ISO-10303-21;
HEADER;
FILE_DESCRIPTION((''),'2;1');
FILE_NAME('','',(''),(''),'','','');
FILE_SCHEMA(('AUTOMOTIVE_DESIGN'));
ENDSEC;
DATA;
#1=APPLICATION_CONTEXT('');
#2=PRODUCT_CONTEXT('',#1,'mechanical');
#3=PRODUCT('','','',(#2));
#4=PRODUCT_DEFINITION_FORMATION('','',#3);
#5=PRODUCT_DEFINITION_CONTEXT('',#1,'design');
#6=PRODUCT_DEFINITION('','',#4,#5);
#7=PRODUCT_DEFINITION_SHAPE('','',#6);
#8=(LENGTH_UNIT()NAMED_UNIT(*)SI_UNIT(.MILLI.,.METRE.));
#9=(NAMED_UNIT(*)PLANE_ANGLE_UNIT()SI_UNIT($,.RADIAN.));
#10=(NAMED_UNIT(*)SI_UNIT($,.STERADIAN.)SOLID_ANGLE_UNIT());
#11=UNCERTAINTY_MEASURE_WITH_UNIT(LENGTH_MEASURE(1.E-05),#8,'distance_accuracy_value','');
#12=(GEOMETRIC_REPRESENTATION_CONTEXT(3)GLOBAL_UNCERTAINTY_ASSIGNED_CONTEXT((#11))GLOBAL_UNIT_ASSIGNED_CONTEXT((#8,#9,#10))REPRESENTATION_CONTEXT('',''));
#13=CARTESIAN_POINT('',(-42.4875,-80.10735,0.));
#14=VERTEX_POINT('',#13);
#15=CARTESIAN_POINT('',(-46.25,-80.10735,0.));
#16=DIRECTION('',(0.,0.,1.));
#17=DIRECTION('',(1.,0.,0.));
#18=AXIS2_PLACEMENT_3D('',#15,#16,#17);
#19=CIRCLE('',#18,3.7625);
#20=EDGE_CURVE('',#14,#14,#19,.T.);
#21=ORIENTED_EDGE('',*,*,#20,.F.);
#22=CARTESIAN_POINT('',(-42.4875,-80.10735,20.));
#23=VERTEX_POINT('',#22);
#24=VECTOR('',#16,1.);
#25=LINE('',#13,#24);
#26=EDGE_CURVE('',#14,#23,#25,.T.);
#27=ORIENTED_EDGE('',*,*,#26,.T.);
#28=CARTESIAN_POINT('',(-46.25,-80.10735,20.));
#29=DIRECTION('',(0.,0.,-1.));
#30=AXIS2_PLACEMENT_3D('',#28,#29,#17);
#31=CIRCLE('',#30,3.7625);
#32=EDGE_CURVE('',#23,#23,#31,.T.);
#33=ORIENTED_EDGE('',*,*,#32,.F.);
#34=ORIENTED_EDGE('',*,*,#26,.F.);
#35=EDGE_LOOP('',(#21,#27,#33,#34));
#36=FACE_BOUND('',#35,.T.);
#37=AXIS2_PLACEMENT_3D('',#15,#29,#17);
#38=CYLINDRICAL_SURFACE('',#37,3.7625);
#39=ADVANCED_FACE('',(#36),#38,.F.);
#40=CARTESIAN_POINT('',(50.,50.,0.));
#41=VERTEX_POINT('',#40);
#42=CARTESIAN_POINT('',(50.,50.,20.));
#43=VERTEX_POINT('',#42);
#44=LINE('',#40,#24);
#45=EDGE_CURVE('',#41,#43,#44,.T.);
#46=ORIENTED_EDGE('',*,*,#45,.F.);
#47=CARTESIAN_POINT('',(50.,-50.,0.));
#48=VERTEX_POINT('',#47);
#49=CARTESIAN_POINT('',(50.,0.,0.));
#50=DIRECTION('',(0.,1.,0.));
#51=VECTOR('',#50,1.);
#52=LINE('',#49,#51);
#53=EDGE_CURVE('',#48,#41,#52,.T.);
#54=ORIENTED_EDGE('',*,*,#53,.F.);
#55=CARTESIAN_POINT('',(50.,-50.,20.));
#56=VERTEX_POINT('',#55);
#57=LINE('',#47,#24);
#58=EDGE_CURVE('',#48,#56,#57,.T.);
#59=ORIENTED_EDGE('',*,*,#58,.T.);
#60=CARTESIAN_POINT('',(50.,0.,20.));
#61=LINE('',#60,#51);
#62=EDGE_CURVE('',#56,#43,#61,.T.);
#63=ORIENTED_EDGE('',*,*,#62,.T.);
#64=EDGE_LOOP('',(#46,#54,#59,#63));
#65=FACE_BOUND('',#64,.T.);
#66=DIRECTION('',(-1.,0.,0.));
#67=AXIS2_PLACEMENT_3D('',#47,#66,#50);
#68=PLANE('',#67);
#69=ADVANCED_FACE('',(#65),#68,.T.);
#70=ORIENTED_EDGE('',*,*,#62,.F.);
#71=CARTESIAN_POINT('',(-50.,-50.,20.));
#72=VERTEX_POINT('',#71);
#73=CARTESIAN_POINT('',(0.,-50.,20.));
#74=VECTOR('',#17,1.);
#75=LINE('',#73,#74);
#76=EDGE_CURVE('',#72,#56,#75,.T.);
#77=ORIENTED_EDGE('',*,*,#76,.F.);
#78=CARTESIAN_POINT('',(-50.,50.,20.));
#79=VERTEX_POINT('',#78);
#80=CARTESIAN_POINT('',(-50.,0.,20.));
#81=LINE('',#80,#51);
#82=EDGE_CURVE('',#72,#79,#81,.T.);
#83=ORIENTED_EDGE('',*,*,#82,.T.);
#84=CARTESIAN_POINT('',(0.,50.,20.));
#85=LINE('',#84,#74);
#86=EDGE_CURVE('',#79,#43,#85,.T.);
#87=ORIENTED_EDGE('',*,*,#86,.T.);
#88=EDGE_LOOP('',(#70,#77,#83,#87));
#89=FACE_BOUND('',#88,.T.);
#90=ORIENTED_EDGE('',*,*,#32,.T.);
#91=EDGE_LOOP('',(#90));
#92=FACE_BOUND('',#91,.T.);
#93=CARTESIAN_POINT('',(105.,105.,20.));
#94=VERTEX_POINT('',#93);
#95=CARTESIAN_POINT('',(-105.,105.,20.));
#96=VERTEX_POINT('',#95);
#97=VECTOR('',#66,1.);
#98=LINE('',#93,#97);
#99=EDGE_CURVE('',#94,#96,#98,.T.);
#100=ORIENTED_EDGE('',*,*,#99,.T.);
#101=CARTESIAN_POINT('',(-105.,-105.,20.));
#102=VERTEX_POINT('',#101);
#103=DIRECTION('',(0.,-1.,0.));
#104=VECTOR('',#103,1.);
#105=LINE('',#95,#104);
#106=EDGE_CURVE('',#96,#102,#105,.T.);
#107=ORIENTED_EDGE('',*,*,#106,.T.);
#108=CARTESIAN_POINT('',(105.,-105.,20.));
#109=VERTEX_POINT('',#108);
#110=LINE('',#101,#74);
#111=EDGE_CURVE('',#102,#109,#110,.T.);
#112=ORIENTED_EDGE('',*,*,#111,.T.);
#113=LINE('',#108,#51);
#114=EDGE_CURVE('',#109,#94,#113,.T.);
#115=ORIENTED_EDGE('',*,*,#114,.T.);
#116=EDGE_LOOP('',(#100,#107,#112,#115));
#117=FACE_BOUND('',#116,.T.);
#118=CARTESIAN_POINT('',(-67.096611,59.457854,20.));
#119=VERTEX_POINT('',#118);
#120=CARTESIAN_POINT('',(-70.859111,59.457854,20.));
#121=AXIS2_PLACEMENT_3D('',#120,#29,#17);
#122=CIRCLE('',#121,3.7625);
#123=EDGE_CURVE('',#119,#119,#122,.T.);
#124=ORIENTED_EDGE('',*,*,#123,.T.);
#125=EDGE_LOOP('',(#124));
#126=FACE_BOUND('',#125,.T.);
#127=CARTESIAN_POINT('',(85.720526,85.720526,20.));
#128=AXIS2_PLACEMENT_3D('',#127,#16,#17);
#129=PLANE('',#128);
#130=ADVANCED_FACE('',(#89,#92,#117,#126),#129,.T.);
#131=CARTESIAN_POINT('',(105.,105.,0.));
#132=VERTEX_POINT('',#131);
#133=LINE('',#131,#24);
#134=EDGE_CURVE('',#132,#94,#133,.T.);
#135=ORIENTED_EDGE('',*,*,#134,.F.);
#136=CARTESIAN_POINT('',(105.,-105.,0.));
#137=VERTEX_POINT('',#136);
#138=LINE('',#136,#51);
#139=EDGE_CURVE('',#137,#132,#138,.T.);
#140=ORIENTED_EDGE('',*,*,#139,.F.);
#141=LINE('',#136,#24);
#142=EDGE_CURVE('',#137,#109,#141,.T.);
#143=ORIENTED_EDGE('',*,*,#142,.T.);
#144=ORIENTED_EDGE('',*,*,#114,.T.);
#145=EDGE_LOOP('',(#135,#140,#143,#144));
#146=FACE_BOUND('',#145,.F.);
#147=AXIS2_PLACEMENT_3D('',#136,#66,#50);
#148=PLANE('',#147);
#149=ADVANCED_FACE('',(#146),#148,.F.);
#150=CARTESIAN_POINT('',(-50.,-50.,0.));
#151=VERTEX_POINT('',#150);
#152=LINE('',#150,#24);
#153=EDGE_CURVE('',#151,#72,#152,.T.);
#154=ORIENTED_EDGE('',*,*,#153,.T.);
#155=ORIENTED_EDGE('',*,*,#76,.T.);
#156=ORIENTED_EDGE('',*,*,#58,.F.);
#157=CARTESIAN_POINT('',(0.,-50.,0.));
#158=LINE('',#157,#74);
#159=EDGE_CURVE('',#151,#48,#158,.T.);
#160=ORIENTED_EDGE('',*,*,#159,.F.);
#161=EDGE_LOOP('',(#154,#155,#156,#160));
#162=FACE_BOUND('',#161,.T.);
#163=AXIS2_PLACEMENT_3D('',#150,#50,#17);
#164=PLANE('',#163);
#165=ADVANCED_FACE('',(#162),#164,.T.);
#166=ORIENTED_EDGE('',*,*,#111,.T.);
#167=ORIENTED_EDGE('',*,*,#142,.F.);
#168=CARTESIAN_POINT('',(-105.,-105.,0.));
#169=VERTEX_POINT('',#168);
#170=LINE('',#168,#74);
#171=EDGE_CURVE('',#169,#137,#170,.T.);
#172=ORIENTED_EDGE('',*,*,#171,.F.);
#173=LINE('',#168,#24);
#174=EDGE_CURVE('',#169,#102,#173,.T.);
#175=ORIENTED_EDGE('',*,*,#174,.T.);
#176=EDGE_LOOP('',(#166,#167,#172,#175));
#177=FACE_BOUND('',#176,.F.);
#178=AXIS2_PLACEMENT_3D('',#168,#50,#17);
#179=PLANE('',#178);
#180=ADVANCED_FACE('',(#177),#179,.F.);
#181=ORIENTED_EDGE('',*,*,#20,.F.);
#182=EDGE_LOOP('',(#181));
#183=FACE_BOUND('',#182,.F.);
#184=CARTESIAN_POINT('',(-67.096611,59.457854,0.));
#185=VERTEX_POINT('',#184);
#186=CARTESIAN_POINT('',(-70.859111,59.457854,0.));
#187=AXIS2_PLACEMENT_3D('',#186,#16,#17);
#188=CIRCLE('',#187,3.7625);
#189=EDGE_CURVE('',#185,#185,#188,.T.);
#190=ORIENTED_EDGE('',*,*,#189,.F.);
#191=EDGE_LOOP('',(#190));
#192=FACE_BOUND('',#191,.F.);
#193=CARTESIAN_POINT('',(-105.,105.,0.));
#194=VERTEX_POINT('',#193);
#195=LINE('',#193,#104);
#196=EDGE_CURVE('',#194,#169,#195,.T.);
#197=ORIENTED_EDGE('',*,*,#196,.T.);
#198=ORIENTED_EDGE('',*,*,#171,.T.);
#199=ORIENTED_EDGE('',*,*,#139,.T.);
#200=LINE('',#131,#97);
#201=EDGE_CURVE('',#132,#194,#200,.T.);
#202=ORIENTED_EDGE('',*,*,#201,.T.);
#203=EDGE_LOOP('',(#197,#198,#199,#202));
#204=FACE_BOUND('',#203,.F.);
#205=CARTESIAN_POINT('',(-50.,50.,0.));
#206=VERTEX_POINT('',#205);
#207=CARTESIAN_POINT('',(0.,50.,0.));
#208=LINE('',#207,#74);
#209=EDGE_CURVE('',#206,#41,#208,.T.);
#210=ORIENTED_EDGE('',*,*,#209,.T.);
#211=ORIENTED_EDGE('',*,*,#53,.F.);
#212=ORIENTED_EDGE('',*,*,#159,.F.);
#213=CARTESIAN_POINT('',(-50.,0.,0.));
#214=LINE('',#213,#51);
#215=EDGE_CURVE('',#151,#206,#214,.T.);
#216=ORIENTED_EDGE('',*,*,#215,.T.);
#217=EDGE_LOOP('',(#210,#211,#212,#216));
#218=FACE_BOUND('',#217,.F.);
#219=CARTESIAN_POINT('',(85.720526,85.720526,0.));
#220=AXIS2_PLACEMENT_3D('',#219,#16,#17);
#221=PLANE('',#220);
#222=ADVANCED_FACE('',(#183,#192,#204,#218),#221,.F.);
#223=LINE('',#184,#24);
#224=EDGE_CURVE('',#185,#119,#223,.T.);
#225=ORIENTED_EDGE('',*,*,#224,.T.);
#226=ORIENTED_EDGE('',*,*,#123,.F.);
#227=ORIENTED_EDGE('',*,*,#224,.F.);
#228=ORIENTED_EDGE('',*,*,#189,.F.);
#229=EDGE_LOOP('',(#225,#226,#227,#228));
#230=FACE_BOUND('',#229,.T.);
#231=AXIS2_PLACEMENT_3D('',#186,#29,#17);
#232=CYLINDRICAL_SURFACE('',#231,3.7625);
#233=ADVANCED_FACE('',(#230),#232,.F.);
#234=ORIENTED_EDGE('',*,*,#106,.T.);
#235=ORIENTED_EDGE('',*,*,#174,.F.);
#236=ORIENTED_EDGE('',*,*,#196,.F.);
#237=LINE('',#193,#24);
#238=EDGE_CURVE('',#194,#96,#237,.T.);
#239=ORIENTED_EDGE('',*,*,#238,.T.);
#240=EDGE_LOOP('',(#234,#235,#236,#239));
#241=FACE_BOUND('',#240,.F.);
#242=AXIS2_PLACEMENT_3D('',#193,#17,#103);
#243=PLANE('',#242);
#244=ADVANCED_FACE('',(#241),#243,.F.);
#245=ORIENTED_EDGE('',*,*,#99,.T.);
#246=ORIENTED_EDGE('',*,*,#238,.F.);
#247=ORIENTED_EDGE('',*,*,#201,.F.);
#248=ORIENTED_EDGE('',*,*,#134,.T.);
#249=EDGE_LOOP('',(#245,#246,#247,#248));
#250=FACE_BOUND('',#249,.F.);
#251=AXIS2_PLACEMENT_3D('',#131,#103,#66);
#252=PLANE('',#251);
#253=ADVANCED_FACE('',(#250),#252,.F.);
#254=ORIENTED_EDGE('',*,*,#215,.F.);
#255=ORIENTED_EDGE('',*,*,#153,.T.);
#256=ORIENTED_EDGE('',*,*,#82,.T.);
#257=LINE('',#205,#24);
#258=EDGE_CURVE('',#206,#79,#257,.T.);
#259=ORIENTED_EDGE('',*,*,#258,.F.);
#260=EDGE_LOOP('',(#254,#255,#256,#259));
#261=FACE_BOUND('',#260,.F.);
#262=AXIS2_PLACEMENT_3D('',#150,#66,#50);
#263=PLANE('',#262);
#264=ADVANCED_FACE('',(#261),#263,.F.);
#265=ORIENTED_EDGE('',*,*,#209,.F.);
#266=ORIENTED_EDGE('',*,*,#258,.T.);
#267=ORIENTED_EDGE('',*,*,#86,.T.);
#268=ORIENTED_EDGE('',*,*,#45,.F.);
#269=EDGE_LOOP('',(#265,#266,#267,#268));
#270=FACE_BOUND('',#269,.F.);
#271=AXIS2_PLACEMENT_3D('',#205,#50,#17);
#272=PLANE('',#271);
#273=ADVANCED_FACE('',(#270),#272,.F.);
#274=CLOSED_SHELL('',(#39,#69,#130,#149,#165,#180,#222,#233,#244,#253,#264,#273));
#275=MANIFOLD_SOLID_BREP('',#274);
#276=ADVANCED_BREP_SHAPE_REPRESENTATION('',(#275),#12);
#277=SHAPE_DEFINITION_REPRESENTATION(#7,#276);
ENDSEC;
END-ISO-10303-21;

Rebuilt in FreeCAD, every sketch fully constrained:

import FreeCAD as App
import Part
import Sketcher
from FreeCAD import Vector
Q = App.Units.Quantity


def add_polygon(sketch, points):
    """Adds a closed chain of lines whose ends are joined by coincident constraints."""
    first, n = sketch.GeometryCount, len(points)
    for a, b in zip(points, points[1:] + points[:1]):
        sketch.addGeometry(Part.LineSegment(App.Vector(*a, 0), App.Vector(*b, 0)), False)
    for i in range(n):
        sketch.addConstraint(Sketcher.Constraint("Coincident", first + i, 2, first + (i + 1) % n, 1))

doc = App.newDocument("Part")
params = doc.addObject("Spreadsheet::Sheet", "Params")
for row, (alias, value) in enumerate([
    ("sketch1_width", "210 mm"),
    ("sketch1_width2", "100 mm"),
    ("pad1_length", "20 mm"),
    ("pocket1_length", "25 mm"),
], start=1):
    params.set(f"A{row}", alias)
    params.set(f"B{row}", "=" + value)
    params.setAlias(f"B{row}", alias)

body = doc.addObject("PartDesign::Body", "Body")

sketch1 = doc.addObject("Sketcher::SketchObject", "Sketch")
body.addObject(sketch1)
sketch1.AttachmentSupport = (doc.XY_Plane, [""])
sketch1.MapMode = "FlatFace"
add_polygon(sketch1, [(105, 105), (-105, 105), (-105, -105), (105, -105)])
add_polygon(sketch1, [(50, -50), (-50, -50), (-50, 50), (50, 50)])
sketch1.addConstraint([
    Sketcher.Constraint("Horizontal", 0),
    Sketcher.Constraint("Vertical", 1),
    Sketcher.Constraint("Horizontal", 2),
    Sketcher.Constraint("Vertical", 3),
    Sketcher.Constraint("Horizontal", 4),
    Sketcher.Constraint("Vertical", 5),
    Sketcher.Constraint("Horizontal", 6),
    Sketcher.Constraint("Vertical", 7),
    Sketcher.Constraint("Symmetric", 0, 2, 2, 2, -1, 1),
    Sketcher.Constraint("Symmetric", 4, 2, 6, 2, -1, 1),
    Sketcher.Constraint("Equal", 2, 1),
    Sketcher.Constraint("Equal", 6, 5),
    Sketcher.Constraint("DistanceX", 0, 2, 0, 1, Q("210 mm")),
    Sketcher.Constraint("DistanceX", 4, 2, 4, 1, Q("100 mm")),
])
sketch1.setExpression("Constraints[20]", "Params.sketch1_width")
sketch1.setExpression("Constraints[21]", "Params.sketch1_width2")
pad1 = doc.addObject("PartDesign::Pad", "Pad")
body.addObject(pad1)
pad1.Profile = sketch1
pad1.setExpression("Length", "Params.pad1_length")

sketch2 = doc.addObject("Sketcher::SketchObject", "Sketch001")
body.addObject(sketch2)
sketch2.AttachmentSupport = (doc.XY_Plane, [""])
sketch2.MapMode = "FlatFace"
sketch2.addGeometry([
    Part.Circle(Vector(-70.9, 59.5, 0), Vector(0, 0, 1), 3.8),
    Part.Circle(Vector(-46.2, -80.1, 0), Vector(0, 0, 1), 3.8),
], False)
sketch2.addConstraint([
    Sketcher.Constraint("Equal", 0, 1),
    Sketcher.Constraint("Diameter", 0, Q("7.525 mm")),
    Sketcher.Constraint("DistanceX", 1, 3, -1, 1, Q("46.25 mm")),
    Sketcher.Constraint("DistanceX", 0, 3, -1, 1, Q("70.859111 mm")),
    Sketcher.Constraint("DistanceY", 1, 3, -1, 1, Q("80.10735 mm")),
    Sketcher.Constraint("DistanceY", -1, 1, 0, 3, Q("59.457854 mm")),
])
pocket1 = doc.addObject("PartDesign::Pocket", "Pocket")
body.addObject(pocket1)
pocket1.Profile = sketch2
pocket1.setExpression("Length", "Params.pocket1_length")
pocket1.Reversed = True

doc.recompute()
